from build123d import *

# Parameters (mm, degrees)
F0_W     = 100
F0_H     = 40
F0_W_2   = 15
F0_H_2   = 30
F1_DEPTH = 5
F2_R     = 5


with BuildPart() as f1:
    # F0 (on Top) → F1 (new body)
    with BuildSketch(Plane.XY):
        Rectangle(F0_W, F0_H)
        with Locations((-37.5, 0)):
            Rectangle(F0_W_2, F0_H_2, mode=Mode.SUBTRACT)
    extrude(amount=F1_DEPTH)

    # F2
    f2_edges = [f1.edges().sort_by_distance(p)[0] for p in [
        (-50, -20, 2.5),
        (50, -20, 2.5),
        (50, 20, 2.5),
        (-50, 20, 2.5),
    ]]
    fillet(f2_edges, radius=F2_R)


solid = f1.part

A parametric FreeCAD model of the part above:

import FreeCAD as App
import Part
import Sketcher
from FreeCAD import Vector
Q = App.Units.Quantity


def edges_at(feature, points):
    """Names of the edges that pass closest to the given points."""
    edges = feature.Shape.Edges
    near = lambda p: min(range(len(edges)), key=lambda i: edges[i].distToShape(Part.Vertex(*p))[0])
    return sorted({f"Edge{near(p) + 1}" for p in points})


def add_polygon(sketch, points):
    """Adds a closed chain of lines whose ends are joined by coincident constraints."""
    first, n = sketch.GeometryCount, len(points)
    for a, b in zip(points, points[1:] + points[:1]):
        sketch.addGeometry(Part.LineSegment(App.Vector(*a, 0), App.Vector(*b, 0)), False)
    for i in range(n):
        sketch.addConstraint(Sketcher.Constraint("Coincident", first + i, 2, first + (i + 1) % n, 1))

doc = App.newDocument("Part")
body = doc.addObject("PartDesign::Body", "Body")

# Sketch on XY plane
sketch1 = body.newObject("Sketcher::SketchObject", "Sketch")
sketch1.AttachmentSupport = (doc.getObject("XY_Plane"), [""])
sketch1.MapMode = "FlatFace"
add_polygon(sketch1, [(-50, 20), (-50, -20), (50, -20), (50, 20)])  # lines 0-3
add_polygon(sketch1, [(-30, -15), (-45, -15), (-45, 15), (-30, 15)])  # lines 4-7
sketch1.addConstraint([
    Sketcher.Constraint("Vertical", 0),
    Sketcher.Constraint("Horizontal", 1),
    Sketcher.Constraint("Vertical", 2),
    Sketcher.Constraint("Horizontal", 3),
    Sketcher.Constraint("Horizontal", 4),
    Sketcher.Constraint("Vertical", 5),
    Sketcher.Constraint("Horizontal", 6),
    Sketcher.Constraint("Vertical", 7),
    Sketcher.Constraint("Symmetric", 0, 2, 2, 2, -1, 1),
    Sketcher.Constraint("DistanceX", 1, 1, 1, 2, Q("100 mm")),
    Sketcher.Constraint("DistanceX", 4, 2, 4, 1, Q("15 mm")),
    Sketcher.Constraint("DistanceY", 0, 2, 0, 1, Q("40 mm")),
    Sketcher.Constraint("DistanceY", 5, 1, 5, 2, Q("30 mm")),
    Sketcher.Constraint("DistanceX", 4, 2, -1, 1, Q("45 mm")),
    Sketcher.Constraint("DistanceY", 4, 2, -1, 1, Q("15 mm")),
])
pad1 = body.newObject("PartDesign::Pad", "Pad")
pad1.Profile = sketch1
pad1.Length = 5
doc.recompute()

fillet = body.newObject("PartDesign::Fillet", "Fillet")
fillet.Base = (pad1, edges_at(pad1, [
    (-50, -20, 2.5),
    (50, -20, 2.5),
    (50, 20, 2.5),
    (-50, 20, 2.5),
]))
fillet.Radius = 5

doc.recompute()
